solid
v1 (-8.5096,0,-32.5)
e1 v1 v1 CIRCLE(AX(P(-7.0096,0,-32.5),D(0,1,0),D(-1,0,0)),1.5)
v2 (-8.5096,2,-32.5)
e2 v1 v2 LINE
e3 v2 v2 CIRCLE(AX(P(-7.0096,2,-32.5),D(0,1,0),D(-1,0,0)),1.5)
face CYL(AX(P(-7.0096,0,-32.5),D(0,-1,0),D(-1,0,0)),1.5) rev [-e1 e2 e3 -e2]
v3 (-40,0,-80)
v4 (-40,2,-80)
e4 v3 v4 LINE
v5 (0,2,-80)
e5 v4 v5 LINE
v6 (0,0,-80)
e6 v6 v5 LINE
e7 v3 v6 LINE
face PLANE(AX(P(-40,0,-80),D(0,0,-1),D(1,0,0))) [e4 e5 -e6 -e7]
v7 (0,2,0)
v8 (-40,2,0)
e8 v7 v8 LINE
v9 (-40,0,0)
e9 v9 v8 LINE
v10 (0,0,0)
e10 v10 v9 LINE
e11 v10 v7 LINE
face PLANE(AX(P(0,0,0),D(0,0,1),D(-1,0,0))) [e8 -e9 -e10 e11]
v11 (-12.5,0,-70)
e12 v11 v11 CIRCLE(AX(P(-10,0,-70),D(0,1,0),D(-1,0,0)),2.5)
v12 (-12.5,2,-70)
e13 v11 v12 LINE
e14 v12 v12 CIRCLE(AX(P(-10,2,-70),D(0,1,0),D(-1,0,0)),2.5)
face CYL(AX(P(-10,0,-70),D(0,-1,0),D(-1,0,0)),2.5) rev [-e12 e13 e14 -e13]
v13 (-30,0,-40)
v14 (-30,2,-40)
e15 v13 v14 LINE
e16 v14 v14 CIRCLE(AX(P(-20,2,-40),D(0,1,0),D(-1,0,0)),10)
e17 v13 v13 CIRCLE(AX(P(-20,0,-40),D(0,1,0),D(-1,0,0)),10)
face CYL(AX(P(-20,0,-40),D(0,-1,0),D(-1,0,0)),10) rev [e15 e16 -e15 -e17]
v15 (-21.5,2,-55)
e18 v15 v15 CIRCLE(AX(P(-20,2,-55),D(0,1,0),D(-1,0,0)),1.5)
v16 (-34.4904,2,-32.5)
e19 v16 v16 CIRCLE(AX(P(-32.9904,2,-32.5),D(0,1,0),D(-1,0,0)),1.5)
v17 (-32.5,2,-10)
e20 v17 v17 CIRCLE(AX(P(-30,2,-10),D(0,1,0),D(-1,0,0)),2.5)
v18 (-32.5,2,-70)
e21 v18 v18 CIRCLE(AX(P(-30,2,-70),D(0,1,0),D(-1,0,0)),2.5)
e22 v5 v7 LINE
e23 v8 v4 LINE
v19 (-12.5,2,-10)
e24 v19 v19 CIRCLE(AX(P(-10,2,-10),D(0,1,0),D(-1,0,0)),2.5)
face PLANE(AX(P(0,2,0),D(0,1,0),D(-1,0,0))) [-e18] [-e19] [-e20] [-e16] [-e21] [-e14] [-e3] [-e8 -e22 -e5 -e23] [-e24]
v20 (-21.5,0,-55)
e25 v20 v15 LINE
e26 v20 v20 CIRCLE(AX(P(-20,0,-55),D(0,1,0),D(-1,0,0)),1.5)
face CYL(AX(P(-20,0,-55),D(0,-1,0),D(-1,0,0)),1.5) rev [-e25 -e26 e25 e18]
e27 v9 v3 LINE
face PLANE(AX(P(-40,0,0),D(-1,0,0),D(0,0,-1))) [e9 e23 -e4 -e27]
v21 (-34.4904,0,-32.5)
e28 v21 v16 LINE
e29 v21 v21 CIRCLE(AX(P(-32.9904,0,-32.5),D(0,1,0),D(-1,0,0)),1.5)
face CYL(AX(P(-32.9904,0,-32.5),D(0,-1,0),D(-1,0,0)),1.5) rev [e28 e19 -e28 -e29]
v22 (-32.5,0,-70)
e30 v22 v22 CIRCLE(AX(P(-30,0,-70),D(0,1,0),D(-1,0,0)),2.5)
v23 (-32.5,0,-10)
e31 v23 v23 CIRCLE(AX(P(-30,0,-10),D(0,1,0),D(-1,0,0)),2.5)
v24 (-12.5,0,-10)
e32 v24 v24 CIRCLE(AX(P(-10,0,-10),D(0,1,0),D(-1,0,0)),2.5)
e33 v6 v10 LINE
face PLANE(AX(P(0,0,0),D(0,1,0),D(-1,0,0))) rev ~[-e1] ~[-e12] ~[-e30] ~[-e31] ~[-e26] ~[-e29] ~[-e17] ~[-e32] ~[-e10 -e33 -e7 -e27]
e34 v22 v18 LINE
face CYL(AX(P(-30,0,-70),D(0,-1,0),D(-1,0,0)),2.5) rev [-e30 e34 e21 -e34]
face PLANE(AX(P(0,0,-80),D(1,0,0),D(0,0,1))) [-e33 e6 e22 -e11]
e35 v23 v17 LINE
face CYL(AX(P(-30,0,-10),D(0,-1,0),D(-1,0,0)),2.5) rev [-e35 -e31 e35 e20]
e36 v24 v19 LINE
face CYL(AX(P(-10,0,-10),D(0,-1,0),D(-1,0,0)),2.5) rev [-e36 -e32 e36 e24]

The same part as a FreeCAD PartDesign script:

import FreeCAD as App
import Part
import Sketcher

V = App.Vector
Q = App.Units.Quantity


def add_polygon(sketch, points):
    """Adds a closed chain of lines whose ends are joined by coincident constraints."""
    first, n = sketch.GeometryCount, len(points)
    for a, b in zip(points, points[1:] + points[:1]):
        sketch.addGeometry(Part.LineSegment(App.Vector(*a, 0), App.Vector(*b, 0)), False)
    for i in range(n):
        sketch.addConstraint(Sketcher.Constraint("Coincident", first + i, 2, first + (i + 1) % n, 1))

doc = App.newDocument("Part")
params = doc.addObject("Spreadsheet::Sheet", "Params")
for row, (alias, value) in enumerate([
    ("sketch1_diameter", "5 mm"),
    ("sketch1_diameter2", "3 mm"),
    ("sketch1_diameter3", "20 mm"),
    ("sketch1_width", "40 mm"),
    ("sketch1_height", "80 mm"),
    ("pad1_length", "2 mm"),
], start=1):
    params.set(f"A{row}", alias)
    params.set(f"B{row}", "=" + value)
    params.setAlias(f"B{row}", alias)

body = doc.addObject("PartDesign::Body", "Body")

sketch1 = body.newObject("Sketcher::SketchObject", "Sketch")
sketch1.AttachmentSupport = (doc.getObject("XZ_Plane"), [""])
sketch1.MapMode = "FlatFace"
add_polygon(sketch1, [(-40, 0), (0, 0), (0, -80), (-40, -80)])
sketch1.addGeometry(Part.Circle(V(-10, -70, 0), V(0, 0, 1), 2.5), False)
sketch1.addGeometry(Part.Circle(V(-30, -70, 0), V(0, 0, 1), 2.5), False)
sketch1.addGeometry(Part.Circle(V(-20, -55, 0), V(0, 0, 1), 1.5), False)
sketch1.addGeometry(Part.Circle(V(-7, -32.5, 0), V(0, 0, 1), 1.5), False)
sketch1.addGeometry(Part.Circle(V(-10, -10, 0), V(0, 0, 1), 2.5), False)
sketch1.addGeometry(Part.Circle(V(-20, -40, 0), V(0, 0, 1), 10), False)
sketch1.addGeometry(Part.Circle(V(-33, -32.5, 0), V(0, 0, 1), 1.5), False)
sketch1.addGeometry(Part.Circle(V(-30, -10, 0), V(0, 0, 1), 2.5), False)
sketch1.addConstraint([
    Sketcher.Constraint("Horizontal", 0),
    Sketcher.Constraint("Vertical", 1),
    Sketcher.Constraint("Horizontal", 2),
    Sketcher.Constraint("Vertical", 3),
    Sketcher.Constraint("Coincident", 0, 2, -1, 1),
    Sketcher.Constraint("Equal", 4, 5),
    Sketcher.Constraint("Equal", 6, 7),
    Sketcher.Constraint("Equal", 5, 8),
    Sketcher.Constraint("Equal", 7, 10),
    Sketcher.Constraint("Equal", 8, 11),
    Sketcher.Constraint("Horizontal", 4, 3, 5, 3),
    Sketcher.Constraint("Horizontal", 7, 3, 10, 3),
    Sketcher.Constraint("Horizontal", 8, 3, 11, 3),
    Sketcher.Constraint("Vertical", 4, 3, 8, 3),
    Sketcher.Constraint("Vertical", 6, 3, 9, 3),
    Sketcher.Constraint("Vertical", 5, 3, 11, 3),
    Sketcher.Constraint("Diameter", 4, Q("5 mm")),
    Sketcher.Constraint("Diameter", 6, Q("3 mm")),
    Sketcher.Constraint("Diameter", 9, Q("20 mm")),
    Sketcher.Constraint("DistanceX", 0, 1, 0, 2, Q("40 mm")),
    Sketcher.Constraint("DistanceY", 1, 2, 1, 1, Q("80 mm")),
    Sketcher.Constraint("DistanceX", 4, 3, -1, 1, Q("10 mm")),
    Sketcher.Constraint("DistanceX", 6, 3, -1, 1, Q("20 mm")),
    Sketcher.Constraint("DistanceY", 8, 3, -1, 1, Q("10 mm")),
    Sketcher.Constraint("DistanceY", 9, 3, -1, 1, Q("40 mm")),
    Sketcher.Constraint("DistanceX", 5, 3, 4, 3, Q("20 mm")),
    Sketcher.Constraint("DistanceY", 4, 3, 6, 3, Q("15 mm")),
    Sketcher.Constraint("DistanceY", 6, 3, 9, 3, Q("15 mm")),
    Sketcher.Constraint("DistanceY", 7, 3, -1, 1, Q("32.5 mm")),
    Sketcher.Constraint("DistanceX", 7, 3, -1, 1, Q("7.0096 mm")),
    Sketcher.Constraint("DistanceX", 10, 3, -1, 1, Q("32.9904 mm")),
])
sketch1.setExpression("Constraints[20]", "Params.sketch1_diameter")
sketch1.setExpression("Constraints[21]", "Params.sketch1_diameter2")
sketch1.setExpression("Constraints[22]", "Params.sketch1_diameter3")
sketch1.setExpression("Constraints[23]", "Params.sketch1_width")
sketch1.setExpression("Constraints[24]", "Params.sketch1_height")
pad1 = body.newObject("PartDesign::Pad", "Pad")
pad1.Profile = sketch1
pad1.setExpression("Length", "Params.pad1_length")
pad1.Reversed = True

doc.recompute()
